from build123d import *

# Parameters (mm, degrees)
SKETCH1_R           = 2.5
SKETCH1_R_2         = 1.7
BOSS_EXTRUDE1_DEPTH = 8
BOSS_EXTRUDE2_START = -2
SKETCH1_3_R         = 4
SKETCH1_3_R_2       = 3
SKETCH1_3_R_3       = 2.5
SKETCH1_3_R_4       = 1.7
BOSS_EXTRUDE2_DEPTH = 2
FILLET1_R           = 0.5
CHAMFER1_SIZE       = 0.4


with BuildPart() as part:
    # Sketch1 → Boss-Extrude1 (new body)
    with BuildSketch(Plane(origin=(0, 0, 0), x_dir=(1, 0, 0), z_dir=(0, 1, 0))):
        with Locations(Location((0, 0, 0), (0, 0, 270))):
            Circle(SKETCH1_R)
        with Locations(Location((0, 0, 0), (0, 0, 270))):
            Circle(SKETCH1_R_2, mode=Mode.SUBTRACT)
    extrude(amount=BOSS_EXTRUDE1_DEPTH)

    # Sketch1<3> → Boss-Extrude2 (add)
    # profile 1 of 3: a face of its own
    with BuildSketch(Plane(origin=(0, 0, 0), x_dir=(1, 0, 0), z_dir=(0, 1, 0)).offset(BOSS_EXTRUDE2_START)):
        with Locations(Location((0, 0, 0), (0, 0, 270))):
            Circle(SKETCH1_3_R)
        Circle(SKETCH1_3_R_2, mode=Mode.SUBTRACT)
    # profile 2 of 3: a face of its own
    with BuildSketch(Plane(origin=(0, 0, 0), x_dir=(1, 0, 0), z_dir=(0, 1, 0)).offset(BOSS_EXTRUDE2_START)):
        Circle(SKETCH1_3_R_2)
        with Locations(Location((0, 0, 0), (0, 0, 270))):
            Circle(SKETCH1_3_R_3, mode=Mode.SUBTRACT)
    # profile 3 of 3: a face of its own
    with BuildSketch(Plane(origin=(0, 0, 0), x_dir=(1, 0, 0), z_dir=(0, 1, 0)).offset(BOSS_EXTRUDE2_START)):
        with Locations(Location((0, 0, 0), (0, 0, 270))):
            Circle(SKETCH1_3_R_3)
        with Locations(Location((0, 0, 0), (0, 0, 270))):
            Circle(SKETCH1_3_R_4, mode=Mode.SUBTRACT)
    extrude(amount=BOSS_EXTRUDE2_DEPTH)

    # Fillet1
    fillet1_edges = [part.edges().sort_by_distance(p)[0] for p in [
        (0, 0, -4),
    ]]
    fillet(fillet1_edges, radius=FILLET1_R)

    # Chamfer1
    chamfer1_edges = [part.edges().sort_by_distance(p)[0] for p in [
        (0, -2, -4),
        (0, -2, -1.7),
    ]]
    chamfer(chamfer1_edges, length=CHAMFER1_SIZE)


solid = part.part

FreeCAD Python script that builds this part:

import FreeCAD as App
import Part
import Sketcher
from FreeCAD import Vector
Q = App.Units.Quantity


def edges_at(feature, points):
    """Names of the edges that pass closest to the given points."""
    edges = feature.Shape.Edges
    near = lambda p: min(range(len(edges)), key=lambda i: edges[i].distToShape(Part.Vertex(*p))[0])
    return sorted({f"Edge{near(p) + 1}" for p in points})

doc = App.newDocument("Part")
body = doc.addObject("PartDesign::Body", "Body")

# Sketch on XZ plane
sketch1 = body.newObject("Sketcher::SketchObject", "Sketch")
sketch1.AttachmentSupport = (doc.getObject("XZ_Plane"), [""])
sketch1.MapMode = "FlatFace"
sketch1.addGeometry(Part.Circle(Vector(0, 0, 0), Vector(0, 0, 1), 2.5), False)
sketch1.addGeometry(Part.Circle(Vector(0, 0, 0), Vector(0, 0, 1), 1.7), False)
sketch1.addConstraint(Sketcher.Constraint("Coincident", 0, 3, -1, 1))
sketch1.addConstraint(Sketcher.Constraint("Coincident", 1, 3, -1, 1))
sketch1.addConstraint(Sketcher.Constraint("Diameter", 0, Q("5 mm")))
sketch1.addConstraint(Sketcher.Constraint("Diameter", 1, Q("3.4 mm")))
pad1 = body.newObject("PartDesign::Pad", "Pad")
pad1.Profile = sketch1
pad1.Length = 8
pad1.Reversed = True

# Sketch on XZ plane
sketch2 = body.newObject("Sketcher::SketchObject", "Sketch001")
sketch2.AttachmentSupport = (doc.getObject("XZ_Plane"), [""])
sketch2.MapMode = "FlatFace"
sketch2.AttachmentOffset = App.Placement(Vector(0, 0, 2), App.Rotation())
sketch2.addGeometry(Part.Circle(Vector(0, 0, 0), Vector(0, 0, 1), 4), False)
sketch2.addGeometry(Part.Circle(Vector(0, 0, 0), Vector(0, 0, 1), 1.7), False)
sketch2.addConstraint(Sketcher.Constraint("Coincident", 0, 3, -1, 1))
sketch2.addConstraint(Sketcher.Constraint("Coincident", 1, 3, -1, 1))
sketch2.addConstraint(Sketcher.Constraint("Diameter", 0, Q("8 mm")))
sketch2.addConstraint(Sketcher.Constraint("Diameter", 1, Q("3.4 mm")))
pad2 = body.newObject("PartDesign::Pad", "Pad001")
pad2.Profile = sketch2
pad2.Length = 2
pad2.Reversed = True
doc.recompute()

fillet = body.newObject("PartDesign::Fillet", "Fillet")
fillet.Base = (pad2, edges_at(pad2, [(0, 0, -4)]))
fillet.Radius = 0.5
doc.recompute()

chamfer = body.newObject("PartDesign::Chamfer", "Chamfer")
chamfer.Base = (fillet, edges_at(fillet, [(0, -2, -4), (0, -2, -1.7)]))
chamfer.Size = 0.4

doc.recompute()
